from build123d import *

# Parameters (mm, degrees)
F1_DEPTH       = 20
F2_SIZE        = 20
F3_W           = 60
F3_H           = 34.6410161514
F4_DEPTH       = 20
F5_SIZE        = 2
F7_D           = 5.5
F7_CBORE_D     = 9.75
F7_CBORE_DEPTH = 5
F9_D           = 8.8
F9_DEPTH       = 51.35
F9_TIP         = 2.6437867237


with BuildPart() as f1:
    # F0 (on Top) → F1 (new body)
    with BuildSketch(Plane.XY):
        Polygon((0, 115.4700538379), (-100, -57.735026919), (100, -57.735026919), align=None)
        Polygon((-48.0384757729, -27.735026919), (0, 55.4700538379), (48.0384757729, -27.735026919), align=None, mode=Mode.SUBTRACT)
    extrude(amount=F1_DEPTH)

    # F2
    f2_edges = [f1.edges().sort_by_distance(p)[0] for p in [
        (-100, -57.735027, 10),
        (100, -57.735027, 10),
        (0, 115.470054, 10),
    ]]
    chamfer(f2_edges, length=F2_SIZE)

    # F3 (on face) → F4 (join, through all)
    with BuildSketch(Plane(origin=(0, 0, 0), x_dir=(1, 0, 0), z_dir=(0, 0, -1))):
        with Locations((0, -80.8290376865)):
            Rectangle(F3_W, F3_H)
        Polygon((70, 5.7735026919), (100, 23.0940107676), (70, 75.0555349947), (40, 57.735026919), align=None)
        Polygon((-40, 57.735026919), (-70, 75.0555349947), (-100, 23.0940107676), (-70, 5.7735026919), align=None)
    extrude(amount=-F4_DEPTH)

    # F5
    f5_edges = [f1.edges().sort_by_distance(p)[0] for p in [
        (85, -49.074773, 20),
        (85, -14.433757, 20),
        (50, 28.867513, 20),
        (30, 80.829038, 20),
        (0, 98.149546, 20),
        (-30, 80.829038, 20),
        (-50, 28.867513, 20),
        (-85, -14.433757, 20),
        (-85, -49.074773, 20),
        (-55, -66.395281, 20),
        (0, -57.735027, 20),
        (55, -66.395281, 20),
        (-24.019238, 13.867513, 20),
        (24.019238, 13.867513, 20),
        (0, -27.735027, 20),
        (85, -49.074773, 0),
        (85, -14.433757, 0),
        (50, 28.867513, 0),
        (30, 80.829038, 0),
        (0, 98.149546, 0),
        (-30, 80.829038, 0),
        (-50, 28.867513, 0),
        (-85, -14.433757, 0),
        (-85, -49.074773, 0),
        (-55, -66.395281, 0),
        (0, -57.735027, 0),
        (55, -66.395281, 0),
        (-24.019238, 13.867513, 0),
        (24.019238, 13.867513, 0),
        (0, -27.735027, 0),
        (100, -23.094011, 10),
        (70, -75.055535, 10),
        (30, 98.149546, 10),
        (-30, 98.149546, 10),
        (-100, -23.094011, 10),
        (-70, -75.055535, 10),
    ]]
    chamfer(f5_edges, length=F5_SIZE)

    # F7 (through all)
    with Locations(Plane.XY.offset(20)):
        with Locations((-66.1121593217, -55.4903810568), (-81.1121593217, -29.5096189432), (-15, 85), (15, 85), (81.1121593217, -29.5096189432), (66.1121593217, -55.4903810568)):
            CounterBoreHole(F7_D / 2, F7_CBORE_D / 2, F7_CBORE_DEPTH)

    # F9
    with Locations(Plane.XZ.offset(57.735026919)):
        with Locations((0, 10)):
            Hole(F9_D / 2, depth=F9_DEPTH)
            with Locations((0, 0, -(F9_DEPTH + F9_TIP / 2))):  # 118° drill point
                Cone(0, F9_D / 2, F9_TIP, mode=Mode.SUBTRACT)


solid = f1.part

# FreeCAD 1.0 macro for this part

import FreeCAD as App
import Part
import Sketcher

V = App.Vector
Q = App.Units.Quantity


def edges_at(feature, points):
    """Names of the edges that pass closest to the given points."""
    edges = feature.Shape.Edges
    near = lambda p: min(range(len(edges)), key=lambda i: edges[i].distToShape(Part.Vertex(*p))[0])
    return sorted({f"Edge{near(p) + 1}" for p in points})


def add_polygon(sketch, points):
    """Adds a closed chain of lines whose ends are joined by coincident constraints."""
    first, n = sketch.GeometryCount, len(points)
    for a, b in zip(points, points[1:] + points[:1]):
        sketch.addGeometry(Part.LineSegment(App.Vector(*a, 0), App.Vector(*b, 0)), False)
    for i in range(n):
        sketch.addConstraint(Sketcher.Constraint("Coincident", first + i, 2, first + (i + 1) % n, 1))

doc = App.newDocument("Part")
params = doc.addObject("Spreadsheet::Sheet", "Params")
for row, (alias, value) in enumerate([
    ("sketch1_width", "200 mm"),
    ("pad1_length", "20 mm"),
    ("chamfer_size", "20 mm"),
    ("sketch2_width", "60 mm"),
    ("sketch2_length", "60 mm"),
    ("pad2_length", "20 mm"),
    ("chamfer2_size", "2 mm"),
    ("sketch3_diameter", "5.5 mm"),
    ("hole_diameter", "5.5 mm"),
    ("hole_cbore_diameter", "9.75 mm"),
    ("hole_cbore_depth", "5 mm"),
    ("sketch4_diameter", "8.8 mm"),
    ("hole2_diameter", "8.8 mm"),
    ("hole2_depth", "51.35 mm"),
], start=1):
    params.set(f"A{row}", alias)
    params.set(f"B{row}", "=" + value)
    params.setAlias(f"B{row}", alias)

body = doc.addObject("PartDesign::Body", "Body")

sketch1 = body.newObject("Sketcher::SketchObject", "Sketch")
sketch1.AttachmentSupport = (doc.getObject("XY_Plane"), [""])
sketch1.MapMode = "FlatFace"
add_polygon(sketch1, [(0, 115), (-100, -58), (100, -58)])
add_polygon(sketch1, [(48, -28), (-48, -28), (0, 55)])
sketch1.addConstraint([
    Sketcher.Constraint("Horizontal", 1),
    Sketcher.Constraint("Horizontal", 3),
    Sketcher.Constraint("PointOnObject", 2, 2, -2),
    Sketcher.Constraint("PointOnObject", 4, 2, -2),
    Sketcher.Constraint("Parallel", 0, 4),
    Sketcher.Constraint("Parallel", 2, 5),
    Sketcher.Constraint("Equal", 0, 2),
    Sketcher.Constraint("DistanceX", 1, 1, 1, 2, Q("200 mm")),
    Sketcher.Constraint("Angle", 0, Q("-120 deg")),
    Sketcher.Constraint("DistanceY", 0, 2, 3, 2, Q("30 mm")),
    Sketcher.Constraint("DistanceY", 4, 2, 2, 2, Q("60 mm")),
    Sketcher.Constraint("DistanceY", 0, 2, -1, 1, Q("57.735027 mm")),
])
sketch1.setExpression("Constraints[13]", "Params.sketch1_width")
pad1 = body.newObject("PartDesign::Pad", "Pad")
pad1.Profile = sketch1
pad1.setExpression("Length", "Params.pad1_length")
doc.recompute()

chamfer = body.newObject("PartDesign::Chamfer", "Chamfer")
chamfer.Base = (pad1, edges_at(pad1, [(-100, -57.735, 10), (100, -57.735, 10), (0, 115.47, 10)]))
chamfer.setExpression("Size", "Params.chamfer_size")

sketch2 = body.newObject("Sketcher::SketchObject", "Sketch001")
sketch2.AttachmentSupport = (doc.getObject("XY_Plane"), [""])
sketch2.MapMode = "FlatFace"
add_polygon(sketch2, [(-30, 64), (-30, 98), (30, 98), (30, 64)])
add_polygon(sketch2, [(70, -6), (100, -23), (70, -75), (40, -58)])
add_polygon(sketch2, [(-40, -58), (-70, -75), (-100, -23), (-70, -6)])
sketch2.addConstraint([
    Sketcher.Constraint("Vertical", 0),
    Sketcher.Constraint("Horizontal", 1),
    Sketcher.Constraint("Vertical", 2),
    Sketcher.Constraint("Horizontal", 3),
    Sketcher.Constraint("Symmetric", 5, 2, 8, 2, -2),
    Sketcher.Constraint("Symmetric", 4, 2, 9, 2, -2),
    Sketcher.Constraint("Symmetric", 7, 2, 10, 2, -2),
    Sketcher.Constraint("Symmetric", 6, 2, 11, 2, -2),
    Sketcher.Constraint("Perpendicular", 4, 5),
    Sketcher.Constraint("Perpendicular", 5, 6),
    Sketcher.Constraint("Perpendicular", 6, 7),
    Sketcher.Constraint("Vertical", 5, 2, 7, 2),
    Sketcher.Constraint("DistanceX", 1, 1, 1, 2, Q("60 mm")),
    Sketcher.Constraint("Angle", 4, Q("-30 deg")),
    Sketcher.Constraint("Distance", 5, Q("60 mm")),
    Sketcher.Constraint("DistanceX", 0, 2, -1, 1, Q("30 mm")),
    Sketcher.Constraint("DistanceX", -1, 1, 4, 2, Q("100 mm")),
    Sketcher.Constraint("DistanceY", 0, 1, 0, 2, Q("34.641016 mm")),
    Sketcher.Constraint("DistanceY", -1, 1, 2, 2, Q("63.50853 mm")),
    Sketcher.Constraint("DistanceY", 4, 2, -1, 1, Q("23.094011 mm")),
])
sketch2.setExpression("Constraints[24]", "Params.sketch2_width")
sketch2.setExpression("Constraints[26]", "Params.sketch2_length")
pad2 = body.newObject("PartDesign::Pad", "Pad001")
pad2.Profile = sketch2
pad2.setExpression("Length", "Params.pad2_length")
doc.recompute()

chamfer2 = body.newObject("PartDesign::Chamfer", "Chamfer001")
chamfer2.Base = (pad2, edges_at(pad2, [
    (85, -49.075, 20),
    (85, -14.434, 20),
    (50, 28.868, 20),
    (30, 80.829, 20),
    (0, 98.15, 20),
    (-30, 80.829, 20),
    (-50, 28.868, 20),
    (-85, -14.434, 20),
    (-85, -49.075, 20),
    (-55, -66.395, 20),
    (0, -57.735, 20),
    (55, -66.395, 20),
    (-24.019, 13.868, 20),
    (24.019, 13.868, 20),
    (0, -27.735, 20),
    (85, -49.075, 0),
    (85, -14.434, 0),
    (50, 28.868, 0),
    (30, 80.829, 0),
    (0, 98.15, 0),
    (-30, 80.829, 0),
    (-50, 28.868, 0),
    (-85, -14.434, 0),
    (-85, -49.075, 0),
    (-55, -66.395, 0),
    (0, -57.735, 0),
    (55, -66.395, 0),
    (-24.019, 13.868, 0),
    (24.019, 13.868, 0),
    (0, -27.735, 0),
    (100, -23.094, 10),
    (70, -75.056, 10),
    (30, 98.15, 10),
    (-30, 98.15, 10),
    (-100, -23.094, 10),
    (-70, -75.056, 10),
]))
chamfer2.setExpression("Size", "Params.chamfer2_size")

sketch3 = body.newObject("Sketcher::SketchObject", "Sketch002")
sketch3.AttachmentSupport = (doc.getObject("XY_Plane"), [""])
sketch3.MapMode = "FlatFace"
sketch3.AttachmentOffset = App.Placement(V(0, 0, 20), App.Rotation())
sketch3.addGeometry([
    Part.Circle(V(-66.1, -55.5, 0), V(0, 0, 1), 2.8),
    Part.Circle(V(-81.1, -29.5, 0), V(0, 0, 1), 2.8),
    Part.Circle(V(-15, 85, 0), V(0, 0, 1), 2.8),
    Part.Circle(V(15, 85, 0), V(0, 0, 1), 2.8),
    Part.Circle(V(81.1, -29.5, 0), V(0, 0, 1), 2.8),
    Part.Circle(V(66.1, -55.5, 0), V(0, 0, 1), 2.8),
], False)
sketch3.addConstraint([
    Sketcher.Constraint("Equal", 0, 1),
    Sketcher.Constraint("Equal", 1, 2),
    Sketcher.Constraint("Equal", 2, 3),
    Sketcher.Constraint("Equal", 3, 4),
    Sketcher.Constraint("Equal", 4, 5),
    Sketcher.Constraint("Symmetric", 2, 3, 3, 3, -2),
    Sketcher.Constraint("Symmetric", 1, 3, 4, 3, -2),
    Sketcher.Constraint("Symmetric", 0, 3, 5, 3, -2),
    Sketcher.Constraint("Diameter", 0, Q("5.5 mm")),
    Sketcher.Constraint("DistanceX", 2, 3, -1, 1, Q("15 mm")),
    Sketcher.Constraint("DistanceY", -1, 1, 2, 3, Q("85 mm")),
    Sketcher.Constraint("DistanceX", 1, 3, 0, 3, Q("15 mm")),
    Sketcher.Constraint("DistanceX", 0, 3, -1, 1, Q("66.112159 mm")),
    Sketcher.Constraint("DistanceY", 0, 3, -1, 1, Q("55.490381 mm")),
    Sketcher.Constraint("DistanceY", 1, 3, -1, 1, Q("29.509619 mm")),
])
sketch3.setExpression("Constraints[8]", "Params.sketch3_diameter")
doc.recompute()
hole = body.newObject("PartDesign::Hole", "Hole")
hole.Profile = sketch3
hole.ThreadType = "None"
hole.setExpression("Diameter", "Params.hole_diameter")
hole.DepthType = "ThroughAll"
hole.HoleCutType = "Counterbore"
hole.setExpression("HoleCutDiameter", "Params.hole_cbore_diameter")
hole.setExpression("HoleCutDepth", "Params.hole_cbore_depth")

sketch4 = body.newObject("Sketcher::SketchObject", "Sketch003")
sketch4.AttachmentSupport = (doc.getObject("XZ_Plane"), [""])
sketch4.MapMode = "FlatFace"
sketch4.AttachmentOffset = App.Placement(V(0, 0, 57.735027), App.Rotation())
sketch4.addGeometry(Part.Circle(V(0, 10, 0), V(0, 0, 1), 4.4), False)
sketch4.addConstraint([
    Sketcher.Constraint("PointOnObject", 0, 3, -2),
    Sketcher.Constraint("Diameter", 0, Q("8.8 mm")),
    Sketcher.Constraint("DistanceY", -1, 1, 0, 3, Q("10 mm")),
])
sketch4.setExpression("Constraints[1]", "Params.sketch4_diameter")
doc.recompute()
hole2 = body.newObject("PartDesign::Hole", "Hole001")
hole2.Profile = sketch4
hole2.ThreadType = "None"
hole2.setExpression("Diameter", "Params.hole2_diameter")
hole2.DepthType = "Dimension"
hole2.setExpression("Depth", "Params.hole2_depth")
hole2.DrillPoint = "Angled"
hole2.DrillPointAngle = 118

doc.recompute()
